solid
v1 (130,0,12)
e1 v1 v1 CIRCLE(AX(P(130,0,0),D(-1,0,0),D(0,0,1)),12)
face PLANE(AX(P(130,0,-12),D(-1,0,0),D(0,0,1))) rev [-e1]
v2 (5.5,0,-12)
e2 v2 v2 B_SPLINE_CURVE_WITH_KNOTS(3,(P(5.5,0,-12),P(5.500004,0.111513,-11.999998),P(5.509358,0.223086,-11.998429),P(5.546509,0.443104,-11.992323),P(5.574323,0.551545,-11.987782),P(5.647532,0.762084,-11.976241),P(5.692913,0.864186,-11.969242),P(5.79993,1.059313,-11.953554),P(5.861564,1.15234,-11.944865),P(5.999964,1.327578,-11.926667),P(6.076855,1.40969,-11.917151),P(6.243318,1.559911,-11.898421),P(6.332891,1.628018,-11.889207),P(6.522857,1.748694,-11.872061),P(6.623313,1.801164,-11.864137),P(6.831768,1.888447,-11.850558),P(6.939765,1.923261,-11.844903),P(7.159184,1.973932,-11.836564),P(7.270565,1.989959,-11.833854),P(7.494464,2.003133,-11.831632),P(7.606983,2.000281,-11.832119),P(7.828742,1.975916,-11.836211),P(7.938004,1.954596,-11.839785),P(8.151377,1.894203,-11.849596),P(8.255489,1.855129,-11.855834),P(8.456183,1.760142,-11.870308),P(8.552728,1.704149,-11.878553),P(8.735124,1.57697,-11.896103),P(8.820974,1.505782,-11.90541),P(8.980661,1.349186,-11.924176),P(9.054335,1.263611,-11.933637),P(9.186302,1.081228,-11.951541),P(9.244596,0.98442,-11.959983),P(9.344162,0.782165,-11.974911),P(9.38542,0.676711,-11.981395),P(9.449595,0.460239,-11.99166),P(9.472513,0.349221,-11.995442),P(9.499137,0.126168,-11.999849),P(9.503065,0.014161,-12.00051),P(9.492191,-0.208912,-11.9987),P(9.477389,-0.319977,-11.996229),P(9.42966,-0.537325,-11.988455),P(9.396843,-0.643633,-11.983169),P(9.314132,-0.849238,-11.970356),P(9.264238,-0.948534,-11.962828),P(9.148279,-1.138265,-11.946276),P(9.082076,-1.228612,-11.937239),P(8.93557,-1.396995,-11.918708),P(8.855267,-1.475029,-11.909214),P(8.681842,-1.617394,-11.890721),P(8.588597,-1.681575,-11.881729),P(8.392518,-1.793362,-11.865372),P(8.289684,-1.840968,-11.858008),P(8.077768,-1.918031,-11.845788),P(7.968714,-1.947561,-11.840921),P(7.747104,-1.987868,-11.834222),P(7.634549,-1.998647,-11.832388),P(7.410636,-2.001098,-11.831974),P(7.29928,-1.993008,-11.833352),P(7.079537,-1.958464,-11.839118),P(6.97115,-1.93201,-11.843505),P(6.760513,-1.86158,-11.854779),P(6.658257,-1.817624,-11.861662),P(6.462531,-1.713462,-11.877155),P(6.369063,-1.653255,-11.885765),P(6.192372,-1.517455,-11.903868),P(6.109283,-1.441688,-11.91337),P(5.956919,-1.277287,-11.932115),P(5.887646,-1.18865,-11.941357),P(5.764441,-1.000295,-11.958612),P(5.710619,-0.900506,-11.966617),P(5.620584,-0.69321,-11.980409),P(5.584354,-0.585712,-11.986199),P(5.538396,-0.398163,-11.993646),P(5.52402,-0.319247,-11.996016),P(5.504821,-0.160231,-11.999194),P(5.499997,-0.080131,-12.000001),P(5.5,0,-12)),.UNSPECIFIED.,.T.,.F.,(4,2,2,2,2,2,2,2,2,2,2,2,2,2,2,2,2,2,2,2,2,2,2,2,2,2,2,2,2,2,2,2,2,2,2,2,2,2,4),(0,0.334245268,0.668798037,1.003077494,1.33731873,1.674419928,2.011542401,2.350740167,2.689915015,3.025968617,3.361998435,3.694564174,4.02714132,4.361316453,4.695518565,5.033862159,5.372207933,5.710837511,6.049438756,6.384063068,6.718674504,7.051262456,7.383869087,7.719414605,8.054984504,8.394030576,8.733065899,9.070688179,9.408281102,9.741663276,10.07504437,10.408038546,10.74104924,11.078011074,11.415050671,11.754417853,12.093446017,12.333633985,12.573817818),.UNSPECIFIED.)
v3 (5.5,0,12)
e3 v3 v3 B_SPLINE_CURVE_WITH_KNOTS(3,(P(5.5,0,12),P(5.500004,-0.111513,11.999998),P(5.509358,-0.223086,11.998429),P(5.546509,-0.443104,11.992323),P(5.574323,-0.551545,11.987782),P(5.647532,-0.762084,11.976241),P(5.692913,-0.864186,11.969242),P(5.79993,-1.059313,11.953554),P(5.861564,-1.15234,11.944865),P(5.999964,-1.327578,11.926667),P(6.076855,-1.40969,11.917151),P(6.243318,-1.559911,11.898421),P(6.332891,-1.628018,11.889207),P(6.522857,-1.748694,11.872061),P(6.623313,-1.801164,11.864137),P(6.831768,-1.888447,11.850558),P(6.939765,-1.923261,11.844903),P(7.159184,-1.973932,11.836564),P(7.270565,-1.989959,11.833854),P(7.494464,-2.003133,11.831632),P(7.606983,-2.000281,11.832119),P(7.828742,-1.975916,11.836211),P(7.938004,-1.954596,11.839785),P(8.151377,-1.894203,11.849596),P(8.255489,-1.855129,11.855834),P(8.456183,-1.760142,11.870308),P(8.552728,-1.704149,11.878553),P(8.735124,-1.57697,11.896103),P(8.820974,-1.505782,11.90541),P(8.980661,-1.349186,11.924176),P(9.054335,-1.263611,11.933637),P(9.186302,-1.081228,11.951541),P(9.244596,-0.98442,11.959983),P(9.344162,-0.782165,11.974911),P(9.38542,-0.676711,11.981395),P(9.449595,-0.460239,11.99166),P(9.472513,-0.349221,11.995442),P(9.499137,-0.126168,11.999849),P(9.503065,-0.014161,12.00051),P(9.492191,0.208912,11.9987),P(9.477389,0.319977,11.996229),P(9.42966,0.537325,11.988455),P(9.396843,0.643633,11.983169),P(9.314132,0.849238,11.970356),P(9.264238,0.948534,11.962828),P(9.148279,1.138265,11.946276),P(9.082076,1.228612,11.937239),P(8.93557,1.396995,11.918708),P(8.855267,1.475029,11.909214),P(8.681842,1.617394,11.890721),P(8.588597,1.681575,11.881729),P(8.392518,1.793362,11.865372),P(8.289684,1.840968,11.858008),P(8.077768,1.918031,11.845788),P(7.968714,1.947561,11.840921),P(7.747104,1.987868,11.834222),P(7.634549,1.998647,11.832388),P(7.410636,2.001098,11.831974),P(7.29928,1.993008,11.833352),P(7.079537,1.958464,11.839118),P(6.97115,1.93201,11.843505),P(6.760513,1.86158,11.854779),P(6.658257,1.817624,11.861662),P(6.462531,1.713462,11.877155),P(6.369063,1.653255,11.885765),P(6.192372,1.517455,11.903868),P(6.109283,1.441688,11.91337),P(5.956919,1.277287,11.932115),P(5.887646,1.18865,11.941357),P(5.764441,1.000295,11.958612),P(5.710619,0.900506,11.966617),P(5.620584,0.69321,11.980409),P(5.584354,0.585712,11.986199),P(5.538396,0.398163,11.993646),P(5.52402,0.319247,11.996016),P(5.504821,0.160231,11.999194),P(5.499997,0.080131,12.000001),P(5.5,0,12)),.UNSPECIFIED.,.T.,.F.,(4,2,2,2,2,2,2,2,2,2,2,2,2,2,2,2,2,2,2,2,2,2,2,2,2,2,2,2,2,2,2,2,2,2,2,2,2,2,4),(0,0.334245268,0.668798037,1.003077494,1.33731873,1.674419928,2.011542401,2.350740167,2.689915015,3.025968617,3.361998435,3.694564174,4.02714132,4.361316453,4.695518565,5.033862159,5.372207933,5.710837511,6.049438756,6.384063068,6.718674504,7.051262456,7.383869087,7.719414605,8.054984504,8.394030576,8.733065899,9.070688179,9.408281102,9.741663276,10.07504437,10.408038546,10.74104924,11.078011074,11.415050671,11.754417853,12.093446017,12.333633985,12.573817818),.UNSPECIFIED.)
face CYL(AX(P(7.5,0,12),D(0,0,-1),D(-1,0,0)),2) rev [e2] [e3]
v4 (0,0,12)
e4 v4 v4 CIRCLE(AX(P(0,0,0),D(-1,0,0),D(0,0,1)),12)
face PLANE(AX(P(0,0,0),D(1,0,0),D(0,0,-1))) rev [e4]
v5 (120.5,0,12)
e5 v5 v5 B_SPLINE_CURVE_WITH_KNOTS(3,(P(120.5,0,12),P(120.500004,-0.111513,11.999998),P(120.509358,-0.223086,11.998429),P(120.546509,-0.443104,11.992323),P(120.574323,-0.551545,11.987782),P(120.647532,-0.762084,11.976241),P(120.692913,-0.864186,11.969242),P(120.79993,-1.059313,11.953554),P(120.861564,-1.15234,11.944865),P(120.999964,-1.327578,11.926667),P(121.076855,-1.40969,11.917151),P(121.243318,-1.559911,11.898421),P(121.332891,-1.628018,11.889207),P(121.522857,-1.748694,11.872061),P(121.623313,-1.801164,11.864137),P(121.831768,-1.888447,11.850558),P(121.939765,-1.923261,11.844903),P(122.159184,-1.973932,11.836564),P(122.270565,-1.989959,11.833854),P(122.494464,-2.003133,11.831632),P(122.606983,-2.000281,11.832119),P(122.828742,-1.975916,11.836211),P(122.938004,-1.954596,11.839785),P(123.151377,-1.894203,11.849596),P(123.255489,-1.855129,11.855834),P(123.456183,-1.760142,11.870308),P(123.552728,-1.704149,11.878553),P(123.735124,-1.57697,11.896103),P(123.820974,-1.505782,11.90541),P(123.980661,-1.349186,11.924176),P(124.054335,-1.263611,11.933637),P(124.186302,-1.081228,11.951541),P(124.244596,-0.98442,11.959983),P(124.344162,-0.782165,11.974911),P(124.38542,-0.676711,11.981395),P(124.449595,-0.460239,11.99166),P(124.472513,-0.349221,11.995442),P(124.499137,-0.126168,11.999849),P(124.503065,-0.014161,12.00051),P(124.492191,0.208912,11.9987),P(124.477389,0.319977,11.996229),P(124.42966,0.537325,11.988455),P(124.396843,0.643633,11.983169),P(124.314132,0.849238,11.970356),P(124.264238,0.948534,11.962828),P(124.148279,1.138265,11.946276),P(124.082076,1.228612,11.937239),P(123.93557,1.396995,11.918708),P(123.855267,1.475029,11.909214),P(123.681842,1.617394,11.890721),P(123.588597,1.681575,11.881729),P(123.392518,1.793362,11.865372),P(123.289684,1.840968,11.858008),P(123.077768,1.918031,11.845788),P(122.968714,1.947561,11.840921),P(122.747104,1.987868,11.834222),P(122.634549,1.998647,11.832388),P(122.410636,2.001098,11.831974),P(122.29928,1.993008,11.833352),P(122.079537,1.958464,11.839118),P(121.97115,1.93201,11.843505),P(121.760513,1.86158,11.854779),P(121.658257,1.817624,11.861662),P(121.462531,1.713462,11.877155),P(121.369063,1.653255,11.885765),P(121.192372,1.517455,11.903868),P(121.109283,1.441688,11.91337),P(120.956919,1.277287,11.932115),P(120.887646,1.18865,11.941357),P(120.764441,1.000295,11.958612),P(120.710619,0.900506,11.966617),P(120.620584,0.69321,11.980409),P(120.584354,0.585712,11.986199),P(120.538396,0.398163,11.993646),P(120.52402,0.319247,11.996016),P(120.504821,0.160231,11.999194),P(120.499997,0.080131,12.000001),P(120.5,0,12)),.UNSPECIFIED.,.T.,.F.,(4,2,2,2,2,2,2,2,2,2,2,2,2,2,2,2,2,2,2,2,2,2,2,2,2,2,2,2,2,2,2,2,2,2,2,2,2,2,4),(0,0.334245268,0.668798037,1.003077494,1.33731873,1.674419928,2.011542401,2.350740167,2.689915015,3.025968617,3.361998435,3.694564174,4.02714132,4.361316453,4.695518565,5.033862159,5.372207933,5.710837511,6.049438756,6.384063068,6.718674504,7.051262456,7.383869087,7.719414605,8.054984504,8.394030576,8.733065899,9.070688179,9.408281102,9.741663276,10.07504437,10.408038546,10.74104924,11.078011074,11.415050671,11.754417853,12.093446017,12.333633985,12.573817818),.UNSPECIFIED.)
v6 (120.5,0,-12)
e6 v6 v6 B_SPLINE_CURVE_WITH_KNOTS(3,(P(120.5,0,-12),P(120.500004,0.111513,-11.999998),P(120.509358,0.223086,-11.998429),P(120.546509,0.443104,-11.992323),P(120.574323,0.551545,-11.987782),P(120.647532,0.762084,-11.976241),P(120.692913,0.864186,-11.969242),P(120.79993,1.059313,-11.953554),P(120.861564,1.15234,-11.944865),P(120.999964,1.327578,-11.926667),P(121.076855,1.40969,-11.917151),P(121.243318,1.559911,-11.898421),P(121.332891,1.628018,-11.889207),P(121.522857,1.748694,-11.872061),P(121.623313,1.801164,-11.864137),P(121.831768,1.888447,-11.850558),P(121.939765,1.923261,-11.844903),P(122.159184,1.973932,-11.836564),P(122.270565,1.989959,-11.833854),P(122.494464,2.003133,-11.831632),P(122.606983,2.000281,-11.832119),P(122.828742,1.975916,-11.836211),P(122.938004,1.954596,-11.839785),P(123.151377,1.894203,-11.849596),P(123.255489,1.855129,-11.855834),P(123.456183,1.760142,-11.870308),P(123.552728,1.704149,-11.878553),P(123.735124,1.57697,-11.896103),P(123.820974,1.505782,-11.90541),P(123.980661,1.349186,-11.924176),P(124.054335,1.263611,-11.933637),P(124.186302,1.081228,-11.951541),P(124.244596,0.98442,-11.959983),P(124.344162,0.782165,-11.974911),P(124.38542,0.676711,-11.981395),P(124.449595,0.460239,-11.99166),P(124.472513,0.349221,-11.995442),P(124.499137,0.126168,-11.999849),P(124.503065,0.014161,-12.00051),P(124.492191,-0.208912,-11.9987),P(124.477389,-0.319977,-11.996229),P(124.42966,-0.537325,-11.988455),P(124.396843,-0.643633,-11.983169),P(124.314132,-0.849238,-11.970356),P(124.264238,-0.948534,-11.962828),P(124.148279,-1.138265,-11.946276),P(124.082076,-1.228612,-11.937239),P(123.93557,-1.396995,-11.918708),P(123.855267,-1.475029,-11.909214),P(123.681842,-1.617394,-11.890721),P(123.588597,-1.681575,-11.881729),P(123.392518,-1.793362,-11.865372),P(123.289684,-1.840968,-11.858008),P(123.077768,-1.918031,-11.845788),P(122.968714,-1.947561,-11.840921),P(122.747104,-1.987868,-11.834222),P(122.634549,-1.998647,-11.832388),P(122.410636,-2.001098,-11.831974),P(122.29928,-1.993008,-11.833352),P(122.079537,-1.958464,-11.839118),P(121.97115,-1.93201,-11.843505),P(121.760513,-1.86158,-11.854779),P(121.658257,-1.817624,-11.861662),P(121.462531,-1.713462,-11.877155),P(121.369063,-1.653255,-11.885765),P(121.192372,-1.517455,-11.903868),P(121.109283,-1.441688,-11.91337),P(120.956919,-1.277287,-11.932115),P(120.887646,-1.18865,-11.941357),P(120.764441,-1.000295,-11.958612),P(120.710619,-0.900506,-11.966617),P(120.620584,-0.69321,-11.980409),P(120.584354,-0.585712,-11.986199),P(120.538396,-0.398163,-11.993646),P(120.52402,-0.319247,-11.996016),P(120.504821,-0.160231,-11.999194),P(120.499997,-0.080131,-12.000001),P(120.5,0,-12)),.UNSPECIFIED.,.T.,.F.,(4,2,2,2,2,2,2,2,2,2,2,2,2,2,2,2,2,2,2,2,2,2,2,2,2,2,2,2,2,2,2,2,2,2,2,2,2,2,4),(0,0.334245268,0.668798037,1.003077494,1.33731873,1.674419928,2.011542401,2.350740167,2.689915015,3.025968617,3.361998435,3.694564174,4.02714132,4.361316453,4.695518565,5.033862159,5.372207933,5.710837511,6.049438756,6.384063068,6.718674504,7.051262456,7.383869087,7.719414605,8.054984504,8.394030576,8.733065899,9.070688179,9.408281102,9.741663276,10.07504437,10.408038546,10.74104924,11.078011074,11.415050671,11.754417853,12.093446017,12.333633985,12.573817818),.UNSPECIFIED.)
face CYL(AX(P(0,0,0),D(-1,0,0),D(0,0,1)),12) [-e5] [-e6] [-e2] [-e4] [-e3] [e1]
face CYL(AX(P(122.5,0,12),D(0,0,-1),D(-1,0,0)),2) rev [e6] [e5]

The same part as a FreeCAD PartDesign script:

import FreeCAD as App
import Part
import Sketcher
from FreeCAD import Vector
Q = App.Units.Quantity

doc = App.newDocument("Part")
body = doc.addObject("PartDesign::Body", "Body")

sketch1 = body.newObject("Sketcher::SketchObject", "Sketch")
sketch1.AttachmentSupport = (doc.getObject("XZ_Plane"), [""])
sketch1.MapMode = "FlatFace"
sketch1.addGeometry(Part.LineSegment(Vector(0, -12, 0), Vector(0, 0, 0)), False)
sketch1.addGeometry(Part.LineSegment(Vector(0, 0, 0), Vector(130, 0, 0)), False)
sketch1.addGeometry(Part.LineSegment(Vector(130, 0, 0), Vector(130, -12, 0)), False)
sketch1.addGeometry(Part.LineSegment(Vector(130, -12, 0), Vector(0, -12, 0)), False)
sketch1.addConstraint(Sketcher.Constraint("Coincident", 0, 2, 1, 1))
sketch1.addConstraint(Sketcher.Constraint("Coincident", 1, 2, 2, 1))
sketch1.addConstraint(Sketcher.Constraint("Coincident", 2, 2, 3, 1))
sketch1.addConstraint(Sketcher.Constraint("Coincident", 3, 2, 0, 1))
sketch1.addConstraint(Sketcher.Constraint("Vertical", 0))
sketch1.addConstraint(Sketcher.Constraint("Horizontal", 1))
sketch1.addConstraint(Sketcher.Constraint("Vertical", 2))
sketch1.addConstraint(Sketcher.Constraint("Horizontal", 3))
sketch1.addConstraint(Sketcher.Constraint("Coincident", 0, 2, -1, 1))
sketch1.addConstraint(Sketcher.Constraint("DistanceX", 1, 1, 1, 2, Q("130 mm")))
sketch1.addConstraint(Sketcher.Constraint("DistanceY", 0, 1, 0, 2, Q("12 mm")))
revolution = body.newObject("PartDesign::Revolution", "Revolution")
revolution.Profile = sketch1
revolution.ReferenceAxis = (sketch1, ["H_Axis"])
revolution.Angle = 360

sketch2 = body.newObject("Sketcher::SketchObject", "Sketch001")
sketch2.AttachmentSupport = (doc.getObject("XY_Plane"), [""])
sketch2.MapMode = "FlatFace"
sketch2.addGeometry(Part.Circle(Vector(7.5, 0, 0), Vector(0, 0, 1), 2), False)
sketch2.addGeometry(Part.Circle(Vector(122.5, 0, 0), Vector(0, 0, 1), 2), False)
sketch2.addConstraint(Sketcher.Constraint("Equal", 0, 1))
sketch2.addConstraint(Sketcher.Constraint("PointOnObject", 0, 3, -1))
sketch2.addConstraint(Sketcher.Constraint("PointOnObject", 1, 3, -1))
sketch2.addConstraint(Sketcher.Constraint("Diameter", 0, Q("4 mm")))
sketch2.addConstraint(Sketcher.Constraint("DistanceX", 0, 3, 1, 3, Q("115 mm")))
sketch2.addConstraint(Sketcher.Constraint("DistanceX", -1, 1, 0, 3, Q("7.5 mm")))
pocket1 = body.newObject("PartDesign::Pocket", "Pocket")
pocket1.Profile = sketch2
pocket1.Type = "ThroughAll"
pocket1.Midplane = True

doc.recompute()
